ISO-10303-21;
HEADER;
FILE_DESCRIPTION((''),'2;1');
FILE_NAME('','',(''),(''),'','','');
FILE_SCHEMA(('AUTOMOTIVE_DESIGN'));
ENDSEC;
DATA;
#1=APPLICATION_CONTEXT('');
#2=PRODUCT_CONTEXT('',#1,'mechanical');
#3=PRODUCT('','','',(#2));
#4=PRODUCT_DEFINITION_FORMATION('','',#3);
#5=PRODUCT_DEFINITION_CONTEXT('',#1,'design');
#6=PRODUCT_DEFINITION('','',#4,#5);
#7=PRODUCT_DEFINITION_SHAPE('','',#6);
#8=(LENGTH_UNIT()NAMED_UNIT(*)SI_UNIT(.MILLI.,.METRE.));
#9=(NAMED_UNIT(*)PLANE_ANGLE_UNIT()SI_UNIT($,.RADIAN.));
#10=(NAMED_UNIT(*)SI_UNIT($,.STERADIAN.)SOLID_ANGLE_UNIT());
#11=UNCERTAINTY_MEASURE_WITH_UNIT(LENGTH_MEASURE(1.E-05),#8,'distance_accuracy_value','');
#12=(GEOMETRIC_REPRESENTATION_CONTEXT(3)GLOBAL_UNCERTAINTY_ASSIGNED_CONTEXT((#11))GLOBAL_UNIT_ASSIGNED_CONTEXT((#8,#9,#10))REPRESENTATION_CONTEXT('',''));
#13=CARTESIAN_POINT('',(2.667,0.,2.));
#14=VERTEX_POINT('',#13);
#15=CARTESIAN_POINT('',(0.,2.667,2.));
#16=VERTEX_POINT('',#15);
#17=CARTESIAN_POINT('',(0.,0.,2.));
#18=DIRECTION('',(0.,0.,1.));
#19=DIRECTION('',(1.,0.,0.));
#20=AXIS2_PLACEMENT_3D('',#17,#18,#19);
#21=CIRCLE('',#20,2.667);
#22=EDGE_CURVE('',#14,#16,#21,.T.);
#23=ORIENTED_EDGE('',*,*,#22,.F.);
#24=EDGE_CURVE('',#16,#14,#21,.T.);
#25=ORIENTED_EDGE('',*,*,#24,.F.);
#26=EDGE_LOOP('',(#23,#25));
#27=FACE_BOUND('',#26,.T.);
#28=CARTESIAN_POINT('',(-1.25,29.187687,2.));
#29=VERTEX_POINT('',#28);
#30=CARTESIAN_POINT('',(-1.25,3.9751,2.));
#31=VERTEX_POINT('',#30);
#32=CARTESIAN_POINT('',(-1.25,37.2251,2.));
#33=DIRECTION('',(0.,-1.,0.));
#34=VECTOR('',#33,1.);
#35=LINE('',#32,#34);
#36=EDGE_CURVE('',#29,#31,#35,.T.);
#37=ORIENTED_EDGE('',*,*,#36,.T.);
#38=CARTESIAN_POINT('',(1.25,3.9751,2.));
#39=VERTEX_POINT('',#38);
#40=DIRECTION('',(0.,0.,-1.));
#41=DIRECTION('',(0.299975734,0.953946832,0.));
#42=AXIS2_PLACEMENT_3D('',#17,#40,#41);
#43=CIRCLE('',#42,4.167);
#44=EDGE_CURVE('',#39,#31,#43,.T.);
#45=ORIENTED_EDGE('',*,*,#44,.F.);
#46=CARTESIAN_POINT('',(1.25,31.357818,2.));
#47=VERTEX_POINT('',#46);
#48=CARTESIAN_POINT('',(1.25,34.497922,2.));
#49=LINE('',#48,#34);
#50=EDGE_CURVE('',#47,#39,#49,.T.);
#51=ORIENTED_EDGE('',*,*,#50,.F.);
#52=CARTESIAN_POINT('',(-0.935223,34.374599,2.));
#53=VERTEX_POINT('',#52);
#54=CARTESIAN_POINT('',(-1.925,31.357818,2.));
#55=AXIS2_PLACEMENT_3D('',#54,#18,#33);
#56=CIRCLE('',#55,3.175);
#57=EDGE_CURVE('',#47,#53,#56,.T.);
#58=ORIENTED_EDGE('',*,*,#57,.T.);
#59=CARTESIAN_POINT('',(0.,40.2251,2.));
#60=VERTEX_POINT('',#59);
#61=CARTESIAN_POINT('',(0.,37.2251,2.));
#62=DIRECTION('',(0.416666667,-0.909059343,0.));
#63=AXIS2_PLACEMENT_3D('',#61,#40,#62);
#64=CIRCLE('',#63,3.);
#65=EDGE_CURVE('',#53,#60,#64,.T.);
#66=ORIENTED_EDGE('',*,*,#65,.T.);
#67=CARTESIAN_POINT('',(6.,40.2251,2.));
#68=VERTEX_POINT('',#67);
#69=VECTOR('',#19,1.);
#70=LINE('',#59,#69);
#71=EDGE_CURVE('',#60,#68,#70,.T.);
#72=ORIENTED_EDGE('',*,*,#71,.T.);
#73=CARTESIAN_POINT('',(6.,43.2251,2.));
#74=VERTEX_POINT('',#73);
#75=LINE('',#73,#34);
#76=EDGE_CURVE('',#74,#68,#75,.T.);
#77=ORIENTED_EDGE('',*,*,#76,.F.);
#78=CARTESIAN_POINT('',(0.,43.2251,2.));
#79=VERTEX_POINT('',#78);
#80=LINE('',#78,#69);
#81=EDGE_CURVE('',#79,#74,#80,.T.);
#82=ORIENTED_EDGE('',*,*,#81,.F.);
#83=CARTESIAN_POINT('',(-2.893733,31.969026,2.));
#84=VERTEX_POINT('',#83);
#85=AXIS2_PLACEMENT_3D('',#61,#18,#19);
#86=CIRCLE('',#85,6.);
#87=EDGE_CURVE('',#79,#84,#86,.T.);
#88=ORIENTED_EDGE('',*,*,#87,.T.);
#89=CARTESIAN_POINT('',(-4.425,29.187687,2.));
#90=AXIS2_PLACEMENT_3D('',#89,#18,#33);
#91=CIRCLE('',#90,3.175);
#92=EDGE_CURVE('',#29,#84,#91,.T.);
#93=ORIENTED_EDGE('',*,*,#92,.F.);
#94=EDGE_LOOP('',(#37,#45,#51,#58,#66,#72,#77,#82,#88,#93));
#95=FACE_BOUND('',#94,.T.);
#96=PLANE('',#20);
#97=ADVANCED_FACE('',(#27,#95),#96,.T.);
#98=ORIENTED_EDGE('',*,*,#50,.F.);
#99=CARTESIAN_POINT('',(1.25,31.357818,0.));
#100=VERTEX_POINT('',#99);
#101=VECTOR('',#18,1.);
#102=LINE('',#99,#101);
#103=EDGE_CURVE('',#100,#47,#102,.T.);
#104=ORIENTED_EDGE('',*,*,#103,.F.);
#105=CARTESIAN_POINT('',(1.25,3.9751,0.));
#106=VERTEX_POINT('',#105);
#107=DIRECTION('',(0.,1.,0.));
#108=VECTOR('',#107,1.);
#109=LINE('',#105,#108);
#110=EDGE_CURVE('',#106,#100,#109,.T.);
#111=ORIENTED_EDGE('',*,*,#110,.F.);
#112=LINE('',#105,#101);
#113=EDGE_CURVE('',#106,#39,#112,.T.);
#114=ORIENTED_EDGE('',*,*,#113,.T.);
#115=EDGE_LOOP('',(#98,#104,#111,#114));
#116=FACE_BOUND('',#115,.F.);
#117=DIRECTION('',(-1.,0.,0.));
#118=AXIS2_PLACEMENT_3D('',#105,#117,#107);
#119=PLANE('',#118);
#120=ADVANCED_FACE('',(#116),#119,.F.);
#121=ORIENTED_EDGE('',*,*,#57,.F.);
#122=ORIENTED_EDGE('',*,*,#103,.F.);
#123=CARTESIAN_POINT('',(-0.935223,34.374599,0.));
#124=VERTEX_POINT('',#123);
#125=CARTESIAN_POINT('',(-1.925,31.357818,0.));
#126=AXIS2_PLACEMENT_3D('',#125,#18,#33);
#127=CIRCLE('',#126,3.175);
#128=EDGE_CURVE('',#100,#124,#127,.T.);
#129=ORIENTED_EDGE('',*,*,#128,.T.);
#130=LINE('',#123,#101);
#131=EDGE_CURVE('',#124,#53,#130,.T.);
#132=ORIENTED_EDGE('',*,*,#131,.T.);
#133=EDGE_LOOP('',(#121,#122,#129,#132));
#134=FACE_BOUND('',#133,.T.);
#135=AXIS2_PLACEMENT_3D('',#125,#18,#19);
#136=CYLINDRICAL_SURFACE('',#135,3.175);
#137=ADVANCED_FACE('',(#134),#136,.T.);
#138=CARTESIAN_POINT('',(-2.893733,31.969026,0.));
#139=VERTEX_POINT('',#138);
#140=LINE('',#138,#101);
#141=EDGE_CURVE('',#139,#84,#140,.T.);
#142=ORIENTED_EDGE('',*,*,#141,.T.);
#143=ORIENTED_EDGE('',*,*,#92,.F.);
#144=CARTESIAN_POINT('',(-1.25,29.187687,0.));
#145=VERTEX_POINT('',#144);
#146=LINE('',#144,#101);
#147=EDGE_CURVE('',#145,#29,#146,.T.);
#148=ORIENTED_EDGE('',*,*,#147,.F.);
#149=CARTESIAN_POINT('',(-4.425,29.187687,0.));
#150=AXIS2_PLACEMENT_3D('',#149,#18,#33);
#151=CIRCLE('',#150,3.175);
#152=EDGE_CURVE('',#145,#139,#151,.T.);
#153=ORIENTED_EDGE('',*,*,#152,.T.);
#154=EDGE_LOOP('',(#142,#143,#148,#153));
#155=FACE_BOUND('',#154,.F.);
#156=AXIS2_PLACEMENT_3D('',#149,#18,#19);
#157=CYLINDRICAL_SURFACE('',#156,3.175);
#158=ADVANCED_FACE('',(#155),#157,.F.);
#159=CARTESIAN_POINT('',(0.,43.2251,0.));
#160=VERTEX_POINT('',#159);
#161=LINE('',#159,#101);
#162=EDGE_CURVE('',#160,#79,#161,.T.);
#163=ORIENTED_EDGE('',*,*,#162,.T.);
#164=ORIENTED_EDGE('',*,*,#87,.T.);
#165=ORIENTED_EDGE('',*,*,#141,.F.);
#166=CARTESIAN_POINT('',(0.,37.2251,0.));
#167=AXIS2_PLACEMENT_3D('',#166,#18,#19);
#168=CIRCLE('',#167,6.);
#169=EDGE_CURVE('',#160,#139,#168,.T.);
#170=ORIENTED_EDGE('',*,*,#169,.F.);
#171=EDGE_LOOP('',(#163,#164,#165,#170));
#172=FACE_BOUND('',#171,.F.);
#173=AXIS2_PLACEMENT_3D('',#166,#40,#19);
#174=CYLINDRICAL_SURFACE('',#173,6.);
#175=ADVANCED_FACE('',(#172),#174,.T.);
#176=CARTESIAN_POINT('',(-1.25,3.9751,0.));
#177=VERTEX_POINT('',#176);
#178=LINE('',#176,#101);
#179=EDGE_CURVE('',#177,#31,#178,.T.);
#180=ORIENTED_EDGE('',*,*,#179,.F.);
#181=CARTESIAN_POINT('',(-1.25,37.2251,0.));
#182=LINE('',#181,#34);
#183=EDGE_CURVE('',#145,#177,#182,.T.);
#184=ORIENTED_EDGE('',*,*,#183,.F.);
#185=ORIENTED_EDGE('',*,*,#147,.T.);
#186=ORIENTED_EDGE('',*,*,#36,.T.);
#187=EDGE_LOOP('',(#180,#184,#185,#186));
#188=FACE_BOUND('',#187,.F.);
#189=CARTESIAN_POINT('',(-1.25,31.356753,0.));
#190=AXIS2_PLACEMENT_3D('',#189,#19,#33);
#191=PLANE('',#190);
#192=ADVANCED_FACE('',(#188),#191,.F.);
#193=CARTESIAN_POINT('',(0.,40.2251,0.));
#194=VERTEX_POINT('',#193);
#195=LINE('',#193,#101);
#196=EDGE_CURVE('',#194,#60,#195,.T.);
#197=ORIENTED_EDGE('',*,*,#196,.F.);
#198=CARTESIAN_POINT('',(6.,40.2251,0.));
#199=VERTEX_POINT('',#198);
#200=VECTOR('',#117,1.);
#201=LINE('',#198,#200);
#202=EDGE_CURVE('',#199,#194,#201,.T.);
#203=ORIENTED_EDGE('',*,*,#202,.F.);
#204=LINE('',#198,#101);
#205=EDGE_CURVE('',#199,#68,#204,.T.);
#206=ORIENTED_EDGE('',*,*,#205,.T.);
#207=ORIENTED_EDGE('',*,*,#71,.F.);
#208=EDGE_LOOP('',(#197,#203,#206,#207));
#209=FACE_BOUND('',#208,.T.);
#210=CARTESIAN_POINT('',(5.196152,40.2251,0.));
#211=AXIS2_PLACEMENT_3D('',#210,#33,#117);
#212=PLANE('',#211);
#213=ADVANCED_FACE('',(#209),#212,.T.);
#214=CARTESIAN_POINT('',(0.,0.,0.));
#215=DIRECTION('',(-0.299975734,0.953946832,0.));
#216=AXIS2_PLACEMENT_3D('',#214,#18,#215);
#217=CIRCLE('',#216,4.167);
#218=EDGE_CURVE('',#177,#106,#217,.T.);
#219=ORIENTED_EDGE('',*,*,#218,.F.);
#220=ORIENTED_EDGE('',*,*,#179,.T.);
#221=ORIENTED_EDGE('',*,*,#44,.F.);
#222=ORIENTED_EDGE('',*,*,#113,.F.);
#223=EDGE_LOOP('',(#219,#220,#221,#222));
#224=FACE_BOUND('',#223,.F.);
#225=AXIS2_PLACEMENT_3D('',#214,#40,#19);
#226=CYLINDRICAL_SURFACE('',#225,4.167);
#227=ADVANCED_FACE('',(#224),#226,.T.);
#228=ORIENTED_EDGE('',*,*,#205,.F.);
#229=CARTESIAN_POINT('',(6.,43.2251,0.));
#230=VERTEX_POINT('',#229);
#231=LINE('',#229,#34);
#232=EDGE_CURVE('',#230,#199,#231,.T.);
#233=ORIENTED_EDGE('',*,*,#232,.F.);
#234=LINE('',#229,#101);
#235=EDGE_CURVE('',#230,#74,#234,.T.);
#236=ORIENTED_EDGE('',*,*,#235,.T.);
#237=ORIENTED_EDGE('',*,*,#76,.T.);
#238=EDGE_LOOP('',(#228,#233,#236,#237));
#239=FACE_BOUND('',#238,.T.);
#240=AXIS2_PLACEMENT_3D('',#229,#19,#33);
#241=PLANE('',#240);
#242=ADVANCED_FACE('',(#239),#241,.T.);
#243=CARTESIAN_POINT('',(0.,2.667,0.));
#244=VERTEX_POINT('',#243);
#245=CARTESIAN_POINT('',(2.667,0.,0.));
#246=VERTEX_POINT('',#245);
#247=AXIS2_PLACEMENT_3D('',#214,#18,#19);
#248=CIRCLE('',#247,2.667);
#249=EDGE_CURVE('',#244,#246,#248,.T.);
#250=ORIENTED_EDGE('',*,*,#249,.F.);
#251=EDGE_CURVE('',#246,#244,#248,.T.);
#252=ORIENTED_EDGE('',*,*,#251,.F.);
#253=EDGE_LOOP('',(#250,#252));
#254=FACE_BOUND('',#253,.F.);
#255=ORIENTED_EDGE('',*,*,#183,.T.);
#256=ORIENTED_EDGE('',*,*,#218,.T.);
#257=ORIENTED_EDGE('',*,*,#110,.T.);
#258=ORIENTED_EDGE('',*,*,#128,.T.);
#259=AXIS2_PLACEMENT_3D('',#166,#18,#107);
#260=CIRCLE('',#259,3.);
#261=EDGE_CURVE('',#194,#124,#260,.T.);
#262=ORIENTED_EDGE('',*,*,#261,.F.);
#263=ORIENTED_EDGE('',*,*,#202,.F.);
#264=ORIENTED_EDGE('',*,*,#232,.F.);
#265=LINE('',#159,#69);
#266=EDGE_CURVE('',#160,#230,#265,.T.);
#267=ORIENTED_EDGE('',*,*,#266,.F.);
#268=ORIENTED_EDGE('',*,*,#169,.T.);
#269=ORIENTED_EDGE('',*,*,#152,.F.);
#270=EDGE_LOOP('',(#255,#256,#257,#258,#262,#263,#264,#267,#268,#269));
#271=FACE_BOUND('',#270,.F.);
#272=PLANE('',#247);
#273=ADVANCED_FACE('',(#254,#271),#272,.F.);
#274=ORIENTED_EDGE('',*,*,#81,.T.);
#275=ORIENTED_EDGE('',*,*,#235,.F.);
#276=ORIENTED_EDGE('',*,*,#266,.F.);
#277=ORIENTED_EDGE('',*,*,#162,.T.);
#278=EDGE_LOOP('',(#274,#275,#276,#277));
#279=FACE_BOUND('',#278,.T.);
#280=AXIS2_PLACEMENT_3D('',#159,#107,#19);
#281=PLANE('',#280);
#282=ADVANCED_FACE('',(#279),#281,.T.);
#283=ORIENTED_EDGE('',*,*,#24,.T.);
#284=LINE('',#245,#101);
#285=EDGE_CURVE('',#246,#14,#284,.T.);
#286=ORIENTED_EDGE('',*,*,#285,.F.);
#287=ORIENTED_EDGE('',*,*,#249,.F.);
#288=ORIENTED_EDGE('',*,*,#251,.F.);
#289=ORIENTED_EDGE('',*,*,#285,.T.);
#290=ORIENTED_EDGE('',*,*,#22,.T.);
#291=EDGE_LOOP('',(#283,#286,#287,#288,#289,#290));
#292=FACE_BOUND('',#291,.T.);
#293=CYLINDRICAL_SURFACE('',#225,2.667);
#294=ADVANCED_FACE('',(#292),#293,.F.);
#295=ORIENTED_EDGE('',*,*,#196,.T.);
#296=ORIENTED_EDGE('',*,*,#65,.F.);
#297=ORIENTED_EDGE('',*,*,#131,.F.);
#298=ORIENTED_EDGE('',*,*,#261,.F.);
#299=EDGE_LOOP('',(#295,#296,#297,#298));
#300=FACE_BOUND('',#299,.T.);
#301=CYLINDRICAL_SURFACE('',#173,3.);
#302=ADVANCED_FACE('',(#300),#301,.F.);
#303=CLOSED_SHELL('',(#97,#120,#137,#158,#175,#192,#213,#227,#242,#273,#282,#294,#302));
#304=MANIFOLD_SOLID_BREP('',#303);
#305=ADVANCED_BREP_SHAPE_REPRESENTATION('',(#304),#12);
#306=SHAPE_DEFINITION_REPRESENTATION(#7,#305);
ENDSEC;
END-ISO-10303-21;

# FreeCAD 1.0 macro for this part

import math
import FreeCAD as App
import Part
import Sketcher

V = App.Vector


def edges_at(feature, points):
    """Names of the edges that pass closest to the given points."""
    edges = feature.Shape.Edges
    near = lambda p: min(range(len(edges)), key=lambda i: edges[i].distToShape(Part.Vertex(*p))[0])
    return sorted({f"Edge{near(p) + 1}" for p in points})

doc = App.newDocument("Part")
params = doc.addObject("Spreadsheet::Sheet", "Params")
for row, (alias, value) in enumerate([
    ("sketch1_radius", "3 mm"),
    ("sketch1_radius2", "6 mm"),
    ("sketch1_width", "6 mm"),
    ("pad1_length", "2 mm"),
    ("fillet_radius", "3.175 mm"),
], start=1):
    params.set(f"A{row}", alias)
    params.set(f"B{row}", "=" + value)
    params.setAlias(f"B{row}", alias)

body = doc.addObject("PartDesign::Body", "Body")

sketch1 = body.newObject("Sketcher::SketchObject", "Sketch")
sketch1.AttachmentSupport = (doc.getObject("XY_Plane"), [""])
sketch1.MapMode = "FlatFace"
sketch1.addGeometry(Part.LineSegment(V(1.2, 4, 0), V(1.2, 34.5, 0)), False)
sketch1.addGeometry(Part.ArcOfCircle(Part.Circle(V(0, 37.2, 0), V(0, 0, 1), 3), math.radians(90), math.radians(295)), False)
sketch1.addGeometry(Part.LineSegment(V(0, 40.2, 0), V(6, 40.2, 0)), False)
sketch1.addGeometry(Part.LineSegment(V(6, 40.2, 0), V(6, 43.2, 0)), False)
sketch1.addGeometry(Part.LineSegment(V(6, 43.2, 0), V(0, 43.2, 0)), False)
sketch1.addGeometry(Part.ArcOfCircle(Part.Circle(V(0, 37.2, 0), V(0, 0, 1), 6), math.radians(90), math.radians(258)), False)
sketch1.addGeometry(Part.LineSegment(V(-1.2, 31.4, 0), V(-1.2, 4, 0)), False)
sketch1.addGeometry(Part.ArcOfCircle(Part.Circle(V(0, 0, 0), V(0, 0, 1), 4.2), math.radians(107), math.radians(433)), False)
sketch1.addGeometry(Part.Circle(V(0, 0, 0), V(0, 0, 1), 2.7), False)
sketch1.addConstraint(Sketcher.Constraint("Coincident", 0, 2, 1, 2))
sketch1.addConstraint(Sketcher.Constraint("Tangent", 1, 1, 2, 1))
sketch1.addConstraint(Sketcher.Constraint("Coincident", 2, 2, 3, 1))
sketch1.addConstraint(Sketcher.Constraint("Coincident", 3, 2, 4, 1))
sketch1.addConstraint(Sketcher.Constraint("Tangent", 4, 2, 5, 1))
sketch1.addConstraint(Sketcher.Constraint("Coincident", 5, 2, 6, 1))
sketch1.addConstraint(Sketcher.Constraint("Coincident", 6, 2, 7, 1))
sketch1.addConstraint(Sketcher.Constraint("Coincident", 7, 2, 0, 1))
sketch1.addConstraint(Sketcher.Constraint("Vertical", 0))
sketch1.addConstraint(Sketcher.Constraint("Horizontal", 2))
sketch1.addConstraint(Sketcher.Constraint("Vertical", 3))
sketch1.addConstraint(Sketcher.Constraint("Horizontal", 4))
sketch1.addConstraint(Sketcher.Constraint("Vertical", 6))
sketch1.addConstraint(Sketcher.Constraint("Coincident", 7, 3, -1, 1))
sketch1.addConstraint(Sketcher.Constraint("Coincident", 8, 3, -1, 1))
sketch1.addConstraint(Sketcher.Constraint("Coincident", 5, 3, 1, 3))
sketch1.addConstraint(Sketcher.Constraint("PointOnObject", 1, 3, -2))
sketch1.addConstraint(Sketcher.Constraint("Horizontal", 6, 2, 7, 2))
sketch1.addConstraint(Sketcher.Constraint("Radius", 1, 3.0))
sketch1.addConstraint(Sketcher.Constraint("Radius", 5, 6.0))
sketch1.addConstraint(Sketcher.Constraint("DistanceX", 2, 1, 2, 2, 6.0))
sketch1.addConstraint(Sketcher.Constraint("Diameter", 8, 5.334))
sketch1.addConstraint(Sketcher.Constraint("Radius", 7, 4.167))
sketch1.addConstraint(Sketcher.Constraint("DistanceX", -1, 1, 0, 2, 1.25))
sketch1.addConstraint(Sketcher.Constraint("DistanceY", 6, 2, 1, 3, 33.25))
sketch1.setExpression("Constraints[18]", "Params.sketch1_radius")
sketch1.setExpression("Constraints[19]", "Params.sketch1_radius2")
sketch1.setExpression("Constraints[20]", "Params.sketch1_width")
pad1 = body.newObject("PartDesign::Pad", "Pad")
pad1.Profile = sketch1
pad1.setExpression("Length", "Params.pad1_length")
doc.recompute()

fillet = body.newObject("PartDesign::Fillet", "Fillet")
fillet.Base = (pad1, edges_at(pad1, [(1.25, 34.498, 1), (-1.25, 31.357, 1)]))
fillet.setExpression("Radius", "Params.fillet_radius")

doc.recompute()
